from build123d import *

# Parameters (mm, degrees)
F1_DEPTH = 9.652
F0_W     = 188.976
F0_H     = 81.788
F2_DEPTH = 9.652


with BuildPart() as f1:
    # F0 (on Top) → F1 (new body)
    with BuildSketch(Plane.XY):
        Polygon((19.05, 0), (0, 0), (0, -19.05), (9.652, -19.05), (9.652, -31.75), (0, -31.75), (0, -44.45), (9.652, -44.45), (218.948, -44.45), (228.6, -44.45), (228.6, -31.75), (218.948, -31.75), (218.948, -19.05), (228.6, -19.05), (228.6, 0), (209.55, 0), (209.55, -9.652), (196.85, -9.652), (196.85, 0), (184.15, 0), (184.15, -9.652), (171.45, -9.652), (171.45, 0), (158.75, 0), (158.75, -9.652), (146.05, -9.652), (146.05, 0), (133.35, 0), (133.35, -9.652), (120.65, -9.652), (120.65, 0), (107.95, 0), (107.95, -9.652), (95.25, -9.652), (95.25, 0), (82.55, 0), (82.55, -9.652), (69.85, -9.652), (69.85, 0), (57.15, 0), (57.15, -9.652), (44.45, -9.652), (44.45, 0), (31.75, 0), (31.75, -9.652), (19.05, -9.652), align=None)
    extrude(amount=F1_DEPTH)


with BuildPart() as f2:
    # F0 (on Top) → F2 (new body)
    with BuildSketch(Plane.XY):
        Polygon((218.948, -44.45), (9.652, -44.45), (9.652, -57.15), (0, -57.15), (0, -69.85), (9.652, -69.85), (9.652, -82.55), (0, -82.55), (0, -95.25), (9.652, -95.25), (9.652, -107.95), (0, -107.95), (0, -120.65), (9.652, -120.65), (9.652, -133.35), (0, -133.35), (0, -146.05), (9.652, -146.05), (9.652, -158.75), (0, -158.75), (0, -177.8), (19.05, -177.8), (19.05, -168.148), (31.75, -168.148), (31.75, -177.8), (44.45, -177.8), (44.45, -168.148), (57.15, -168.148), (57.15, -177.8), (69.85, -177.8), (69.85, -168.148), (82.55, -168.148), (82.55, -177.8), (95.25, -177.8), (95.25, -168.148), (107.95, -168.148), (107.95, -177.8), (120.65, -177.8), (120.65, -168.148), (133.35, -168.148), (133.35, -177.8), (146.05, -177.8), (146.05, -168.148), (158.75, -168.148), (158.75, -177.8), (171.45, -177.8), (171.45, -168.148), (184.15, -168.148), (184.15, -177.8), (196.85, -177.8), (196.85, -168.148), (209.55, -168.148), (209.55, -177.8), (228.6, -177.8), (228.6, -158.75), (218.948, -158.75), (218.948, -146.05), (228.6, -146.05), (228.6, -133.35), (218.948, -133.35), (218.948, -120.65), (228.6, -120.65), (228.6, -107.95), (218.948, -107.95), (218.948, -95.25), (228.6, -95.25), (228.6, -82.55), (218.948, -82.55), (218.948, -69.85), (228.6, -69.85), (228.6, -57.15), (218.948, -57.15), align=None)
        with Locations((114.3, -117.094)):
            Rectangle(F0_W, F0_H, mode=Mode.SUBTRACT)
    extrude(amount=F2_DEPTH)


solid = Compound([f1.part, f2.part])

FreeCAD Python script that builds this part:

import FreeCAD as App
import Part
import Sketcher

V = App.Vector
Q = App.Units.Quantity


def add_polygon(sketch, points):
    """Adds a closed chain of lines whose ends are joined by coincident constraints."""
    first, n = sketch.GeometryCount, len(points)
    for a, b in zip(points, points[1:] + points[:1]):
        sketch.addGeometry(Part.LineSegment(App.Vector(*a, 0), App.Vector(*b, 0)), False)
    for i in range(n):
        sketch.addConstraint(Sketcher.Constraint("Coincident", first + i, 2, first + (i + 1) % n, 1))

doc = App.newDocument("Part")
body = doc.addObject("PartDesign::Body", "Body")

# Sketch on XY plane
sketch1 = doc.addObject("Sketcher::SketchObject", "Sketch")
body.addObject(sketch1)
sketch1.AttachmentSupport = (doc.XY_Plane, [""])
sketch1.MapMode = "FlatFace"
add_polygon(sketch1, [(19, 0), (0, 0), (0, -19), (10, -19), (10, -32), (0, -32), (0, -44), (229, -44), (229, -32), (219, -32), (219, -19), (229, -19), (229, 0), (210, 0), (210, -10), (197, -10), (197, 0), (184, 0), (184, -10), (171, -10), (171, 0), (159, 0), (159, -10), (146, -10), (146, 0), (133, 0), (133, -10), (121, -10), (121, 0), (108, 0), (108, -10), (95, -10), (95, 0), (83, 0), (83, -10), (70, -10), (70, 0), (57, 0), (57, -10), (44, -10), (44, 0), (32, 0), (32, -10), (19, -10)])  # lines 0-43
sketch1.addConstraint([
    Sketcher.Constraint("Horizontal", 0),
    Sketcher.Constraint("Vertical", 1),
    Sketcher.Constraint("Horizontal", 2),
    Sketcher.Constraint("Vertical", 3),
    Sketcher.Constraint("Horizontal", 4),
    Sketcher.Constraint("Vertical", 5),
    Sketcher.Constraint("Horizontal", 6),
    Sketcher.Constraint("Vertical", 7),
    Sketcher.Constraint("Horizontal", 8),
    Sketcher.Constraint("Vertical", 9),
    Sketcher.Constraint("Horizontal", 10),
    Sketcher.Constraint("Vertical", 11),
    Sketcher.Constraint("Horizontal", 12),
    Sketcher.Constraint("Vertical", 13),
    Sketcher.Constraint("Horizontal", 14),
    Sketcher.Constraint("Vertical", 15),
    Sketcher.Constraint("Horizontal", 16),
    Sketcher.Constraint("Vertical", 17),
    Sketcher.Constraint("Horizontal", 18),
    Sketcher.Constraint("Vertical", 19),
    Sketcher.Constraint("Horizontal", 20),
    Sketcher.Constraint("Vertical", 21),
    Sketcher.Constraint("Horizontal", 22),
    Sketcher.Constraint("Vertical", 23),
    Sketcher.Constraint("Horizontal", 24),
    Sketcher.Constraint("Vertical", 25),
    Sketcher.Constraint("Horizontal", 26),
    Sketcher.Constraint("Vertical", 27),
    Sketcher.Constraint("Horizontal", 28),
    Sketcher.Constraint("Vertical", 29),
    Sketcher.Constraint("Horizontal", 30),
    Sketcher.Constraint("Vertical", 31),
    Sketcher.Constraint("Horizontal", 32),
    Sketcher.Constraint("Vertical", 33),
    Sketcher.Constraint("Horizontal", 34),
    Sketcher.Constraint("Vertical", 35),
    Sketcher.Constraint("Horizontal", 36),
    Sketcher.Constraint("Vertical", 37),
    Sketcher.Constraint("Horizontal", 38),
    Sketcher.Constraint("Vertical", 39),
    Sketcher.Constraint("Horizontal", 40),
    Sketcher.Constraint("Vertical", 41),
    Sketcher.Constraint("Horizontal", 42),
    Sketcher.Constraint("Vertical", 43),
    Sketcher.Constraint("Coincident", 0, 2, -1, 1),
    Sketcher.Constraint("PointOnObject", 4, 2, -2),
    Sketcher.Constraint("PointOnObject", 11, 2, -1),
    Sketcher.Constraint("PointOnObject", 15, 2, -1),
    Sketcher.Constraint("PointOnObject", 19, 2, -1),
    Sketcher.Constraint("PointOnObject", 23, 2, -1),
    Sketcher.Constraint("PointOnObject", 27, 2, -1),
    Sketcher.Constraint("PointOnObject", 31, 2, -1),
    Sketcher.Constraint("PointOnObject", 35, 2, -1),
    Sketcher.Constraint("PointOnObject", 39, 2, -1),
    Sketcher.Constraint("Horizontal", 4, 2, 7, 2),
    Sketcher.Constraint("Horizontal", 2, 2, 9, 2),
    Sketcher.Constraint("Horizontal", 14, 2, 17, 2),
    Sketcher.Constraint("Horizontal", 18, 2, 21, 2),
    Sketcher.Constraint("Horizontal", 22, 2, 25, 2),
    Sketcher.Constraint("Horizontal", 26, 2, 29, 2),
    Sketcher.Constraint("Horizontal", 30, 2, 33, 2),
    Sketcher.Constraint("Horizontal", 34, 2, 37, 2),
    Sketcher.Constraint("Horizontal", 38, 2, 41, 2),
    Sketcher.Constraint("Vertical", 7, 2, 10, 2),
    Sketcher.Constraint("Equal", 4, 8),
    Sketcher.Constraint("Equal", 0, 12),
    Sketcher.Constraint("Equal", 14, 16),
    Sketcher.Constraint("Equal", 16, 18),
    Sketcher.Constraint("Equal", 18, 20),
    Sketcher.Constraint("Equal", 20, 22),
    Sketcher.Constraint("Equal", 22, 24),
    Sketcher.Constraint("Equal", 24, 26),
    Sketcher.Constraint("Equal", 26, 28),
    Sketcher.Constraint("Equal", 28, 30),
    Sketcher.Constraint("Equal", 30, 32),
    Sketcher.Constraint("Equal", 32, 34),
    Sketcher.Constraint("Equal", 34, 36),
    Sketcher.Constraint("Equal", 36, 38),
    Sketcher.Constraint("Equal", 38, 40),
    Sketcher.Constraint("Equal", 40, 42),
    Sketcher.Constraint("Equal", 12, 1),
    Sketcher.Constraint("Equal", 42, 3),
    Sketcher.Constraint("Equal", 3, 5),
    Sketcher.Constraint("Equal", 10, 13),
    Sketcher.Constraint("DistanceX", 6, 1, 6, 2, Q("9 in")),
    Sketcher.Constraint("DistanceX", 14, 2, 14, 1, Q("0.5 in")),
    Sketcher.Constraint("DistanceX", 2, 1, 2, 2, Q("0.38 in")),
])
pad1 = doc.addObject("PartDesign::Pad", "Pad")
body.addObject(pad1)
pad1.Profile = sketch1
pad1.Length = Q("0.38 in")
body2 = doc.addObject("PartDesign::Body", "Body001")

# Sketch on XY plane
sketch2 = doc.addObject("Sketcher::SketchObject", "Sketch001")
body2.addObject(sketch2)
sketch2.AttachmentSupport = (doc.getObject("XY_Plane001"), [""])
sketch2.MapMode = "FlatFace"
add_polygon(sketch2, [(219, -44), (10, -44), (10, -57), (0, -57), (0, -70), (10, -70), (10, -83), (0, -83), (0, -95), (10, -95), (10, -108), (0, -108), (0, -121), (10, -121), (10, -133), (0, -133), (0, -146), (10, -146), (10, -159), (0, -159), (0, -178), (19, -178), (19, -168), (32, -168), (32, -178), (44, -178), (44, -168), (57, -168), (57, -178), (70, -178), (70, -168), (83, -168), (83, -178), (95, -178), (95, -168), (108, -168), (108, -178), (121, -178), (121, -168), (133, -168), (133, -178), (146, -178), (146, -168), (159, -168), (159, -178), (171, -178), (171, -168), (184, -168), (184, -178), (197, -178), (197, -168), (210, -168), (210, -178), (229, -178), (229, -159), (219, -159), (219, -146), (229, -146), (229, -133), (219, -133), (219, -121), (229, -121), (229, -108), (219, -108), (219, -95), (229, -95), (229, -83), (219, -83), (219, -70), (229, -70), (229, -57), (219, -57)])  # lines 0-71
add_polygon(sketch2, [(209, -158), (20, -158), (20, -76), (209, -76)])  # lines 72-75
sketch2.addConstraint([
    Sketcher.Constraint("Horizontal", 0),
    Sketcher.Constraint("Vertical", 1),
    Sketcher.Constraint("Horizontal", 2),
    Sketcher.Constraint("Vertical", 3),
    Sketcher.Constraint("Horizontal", 4),
    Sketcher.Constraint("Vertical", 5),
    Sketcher.Constraint("Horizontal", 6),
    Sketcher.Constraint("Vertical", 7),
    Sketcher.Constraint("Horizontal", 8),
    Sketcher.Constraint("Vertical", 9),
    Sketcher.Constraint("Horizontal", 10),
    Sketcher.Constraint("Vertical", 11),
    Sketcher.Constraint("Horizontal", 12),
    Sketcher.Constraint("Vertical", 13),
    Sketcher.Constraint("Horizontal", 14),
    Sketcher.Constraint("Vertical", 15),
    Sketcher.Constraint("Horizontal", 16),
    Sketcher.Constraint("Vertical", 17),
    Sketcher.Constraint("Horizontal", 18),
    Sketcher.Constraint("Vertical", 19),
    Sketcher.Constraint("Horizontal", 20),
    Sketcher.Constraint("Vertical", 21),
    Sketcher.Constraint("Horizontal", 22),
    Sketcher.Constraint("Vertical", 23),
    Sketcher.Constraint("Horizontal", 24),
    Sketcher.Constraint("Vertical", 25),
    Sketcher.Constraint("Horizontal", 26),
    Sketcher.Constraint("Vertical", 27),
    Sketcher.Constraint("Horizontal", 28),
    Sketcher.Constraint("Vertical", 29),
    Sketcher.Constraint("Horizontal", 30),
    Sketcher.Constraint("Vertical", 31),
    Sketcher.Constraint("Horizontal", 32),
    Sketcher.Constraint("Vertical", 33),
    Sketcher.Constraint("Horizontal", 34),
    Sketcher.Constraint("Vertical", 35),
    Sketcher.Constraint("Horizontal", 36),
    Sketcher.Constraint("Vertical", 37),
    Sketcher.Constraint("Horizontal", 38),
    Sketcher.Constraint("Vertical", 39),
    Sketcher.Constraint("Horizontal", 40),
    Sketcher.Constraint("Vertical", 41),
    Sketcher.Constraint("Horizontal", 42),
    Sketcher.Constraint("Vertical", 43),
    Sketcher.Constraint("Horizontal", 44),
    Sketcher.Constraint("Vertical", 45),
    Sketcher.Constraint("Horizontal", 46),
    Sketcher.Constraint("Vertical", 47),
    Sketcher.Constraint("Horizontal", 48),
    Sketcher.Constraint("Vertical", 49),
    Sketcher.Constraint("Horizontal", 50),
    Sketcher.Constraint("Vertical", 51),
    Sketcher.Constraint("Horizontal", 52),
    Sketcher.Constraint("Vertical", 53),
    Sketcher.Constraint("Horizontal", 54),
    Sketcher.Constraint("Vertical", 55),
    Sketcher.Constraint("Horizontal", 56),
    Sketcher.Constraint("Vertical", 57),
    Sketcher.Constraint("Horizontal", 58),
    Sketcher.Constraint("Vertical", 59),
    Sketcher.Constraint("Horizontal", 60),
    Sketcher.Constraint("Vertical", 61),
    Sketcher.Constraint("Horizontal", 62),
    Sketcher.Constraint("Vertical", 63),
    Sketcher.Constraint("Horizontal", 64),
    Sketcher.Constraint("Vertical", 65),
    Sketcher.Constraint("Horizontal", 66),
    Sketcher.Constraint("Vertical", 67),
    Sketcher.Constraint("Horizontal", 68),
    Sketcher.Constraint("Vertical", 69),
    Sketcher.Constraint("Horizontal", 70),
    Sketcher.Constraint("Vertical", 71),
    Sketcher.Constraint("Horizontal", 72),
    Sketcher.Constraint("Vertical", 73),
    Sketcher.Constraint("Horizontal", 74),
    Sketcher.Constraint("Vertical", 75),
    Sketcher.Constraint("PointOnObject", 2, 2, -2),
    Sketcher.Constraint("PointOnObject", 6, 2, -2),
    Sketcher.Constraint("PointOnObject", 10, 2, -2),
    Sketcher.Constraint("PointOnObject", 14, 2, -2),
    Sketcher.Constraint("PointOnObject", 18, 2, -2),
    Sketcher.Constraint("Horizontal", 20, 2, 23, 2),
    Sketcher.Constraint("Horizontal", 22, 2, 25, 2),
    Sketcher.Constraint("Horizontal", 24, 2, 27, 2),
    Sketcher.Constraint("Horizontal", 26, 2, 29, 2),
    Sketcher.Constraint("Horizontal", 28, 2, 31, 2),
    Sketcher.Constraint("Horizontal", 30, 2, 33, 2),
    Sketcher.Constraint("Horizontal", 32, 2, 35, 2),
    Sketcher.Constraint("Horizontal", 34, 2, 37, 2),
    Sketcher.Constraint("Horizontal", 36, 2, 39, 2),
    Sketcher.Constraint("Horizontal", 38, 2, 41, 2),
    Sketcher.Constraint("Horizontal", 40, 2, 43, 2),
    Sketcher.Constraint("Horizontal", 42, 2, 45, 2),
    Sketcher.Constraint("Horizontal", 44, 2, 47, 2),
    Sketcher.Constraint("Horizontal", 46, 2, 49, 2),
    Sketcher.Constraint("Horizontal", 48, 2, 51, 2),
    Sketcher.Constraint("Horizontal", 18, 2, 53, 2),
    Sketcher.Constraint("Horizontal", 16, 2, 55, 2),
    Sketcher.Constraint("Horizontal", 14, 2, 57, 2),
    Sketcher.Constraint("Horizontal", 12, 2, 59, 2),
    Sketcher.Constraint("Horizontal", 10, 2, 61, 2),
    Sketcher.Constraint("Horizontal", 8, 2, 63, 2),
    Sketcher.Constraint("Horizontal", 6, 2, 65, 2),
    Sketcher.Constraint("Horizontal", 4, 2, 67, 2),
    Sketcher.Constraint("Horizontal", 2, 2, 69, 2),
    Sketcher.Constraint("Vertical", 1, 2, 4, 2),
    Sketcher.Constraint("Vertical", 5, 2, 8, 2),
    Sketcher.Constraint("Vertical", 9, 2, 12, 2),
    Sketcher.Constraint("Vertical", 13, 2, 16, 2),
    Sketcher.Constraint("Vertical", 53, 2, 56, 2),
    Sketcher.Constraint("Vertical", 55, 2, 58, 2),
    Sketcher.Constraint("Vertical", 57, 2, 60, 2),
    Sketcher.Constraint("Vertical", 59, 2, 62, 2),
    Sketcher.Constraint("Vertical", 61, 2, 64, 2),
    Sketcher.Constraint("Vertical", 63, 2, 66, 2),
    Sketcher.Constraint("Vertical", 65, 2, 68, 2),
    Sketcher.Constraint("Vertical", 67, 2, 70, 2),
    Sketcher.Constraint("Equal", 22, 24),
    Sketcher.Constraint("Equal", 24, 26),
    Sketcher.Constraint("Equal", 26, 28),
    Sketcher.Constraint("Equal", 28, 30),
    Sketcher.Constraint("Equal", 30, 32),
    Sketcher.Constraint("Equal", 32, 34),
    Sketcher.Constraint("Equal", 34, 36),
    Sketcher.Constraint("Equal", 36, 38),
    Sketcher.Constraint("Equal", 38, 40),
    Sketcher.Constraint("Equal", 40, 42),
    Sketcher.Constraint("Equal", 42, 44),
    Sketcher.Constraint("Equal", 44, 46),
    Sketcher.Constraint("Equal", 46, 48),
    Sketcher.Constraint("Equal", 48, 50),
    Sketcher.Constraint("Equal", 20, 52),
    Sketcher.Constraint("Equal", 18, 54),
    Sketcher.Constraint("Equal", 50, 1),
    Sketcher.Constraint("Equal", 1, 3),
    Sketcher.Constraint("Equal", 3, 5),
    Sketcher.Constraint("Equal", 5, 7),
    Sketcher.Constraint("Equal", 7, 9),
    Sketcher.Constraint("Equal", 9, 11),
    Sketcher.Constraint("Equal", 11, 13),
    Sketcher.Constraint("Equal", 13, 15),
    Sketcher.Constraint("Equal", 15, 17),
    Sketcher.Constraint("Equal", 52, 19),
    Sketcher.Constraint("Equal", 70, 21),
    Sketcher.Constraint("DistanceX", 22, 1, 22, 2, Q("0.5 in")),
    Sketcher.Constraint("DistanceY", 19, 2, -1, 1, Q("7 in")),
    Sketcher.Constraint("DistanceX", -1, 1, 52, 2, Q("9 in")),
    Sketcher.Constraint("DistanceY", 73, 2, -1, 1, Q("3 in")),
    Sketcher.Constraint("DistanceX", 0, 2, 0, 1, Q("8.24 in")),
    Sketcher.Constraint("DistanceX", 72, 2, 72, 1, Q("7.44 in")),
    Sketcher.Constraint("DistanceY", 73, 1, 73, 2, Q("3.22 in")),
    Sketcher.Constraint("DistanceX", -1, 1, 72, 2, Q("0.78 in")),
])
pad2 = doc.addObject("PartDesign::Pad", "Pad001")
body2.addObject(pad2)
pad2.Profile = sketch2
pad2.Length = Q("0.38 in")

doc.recompute()
